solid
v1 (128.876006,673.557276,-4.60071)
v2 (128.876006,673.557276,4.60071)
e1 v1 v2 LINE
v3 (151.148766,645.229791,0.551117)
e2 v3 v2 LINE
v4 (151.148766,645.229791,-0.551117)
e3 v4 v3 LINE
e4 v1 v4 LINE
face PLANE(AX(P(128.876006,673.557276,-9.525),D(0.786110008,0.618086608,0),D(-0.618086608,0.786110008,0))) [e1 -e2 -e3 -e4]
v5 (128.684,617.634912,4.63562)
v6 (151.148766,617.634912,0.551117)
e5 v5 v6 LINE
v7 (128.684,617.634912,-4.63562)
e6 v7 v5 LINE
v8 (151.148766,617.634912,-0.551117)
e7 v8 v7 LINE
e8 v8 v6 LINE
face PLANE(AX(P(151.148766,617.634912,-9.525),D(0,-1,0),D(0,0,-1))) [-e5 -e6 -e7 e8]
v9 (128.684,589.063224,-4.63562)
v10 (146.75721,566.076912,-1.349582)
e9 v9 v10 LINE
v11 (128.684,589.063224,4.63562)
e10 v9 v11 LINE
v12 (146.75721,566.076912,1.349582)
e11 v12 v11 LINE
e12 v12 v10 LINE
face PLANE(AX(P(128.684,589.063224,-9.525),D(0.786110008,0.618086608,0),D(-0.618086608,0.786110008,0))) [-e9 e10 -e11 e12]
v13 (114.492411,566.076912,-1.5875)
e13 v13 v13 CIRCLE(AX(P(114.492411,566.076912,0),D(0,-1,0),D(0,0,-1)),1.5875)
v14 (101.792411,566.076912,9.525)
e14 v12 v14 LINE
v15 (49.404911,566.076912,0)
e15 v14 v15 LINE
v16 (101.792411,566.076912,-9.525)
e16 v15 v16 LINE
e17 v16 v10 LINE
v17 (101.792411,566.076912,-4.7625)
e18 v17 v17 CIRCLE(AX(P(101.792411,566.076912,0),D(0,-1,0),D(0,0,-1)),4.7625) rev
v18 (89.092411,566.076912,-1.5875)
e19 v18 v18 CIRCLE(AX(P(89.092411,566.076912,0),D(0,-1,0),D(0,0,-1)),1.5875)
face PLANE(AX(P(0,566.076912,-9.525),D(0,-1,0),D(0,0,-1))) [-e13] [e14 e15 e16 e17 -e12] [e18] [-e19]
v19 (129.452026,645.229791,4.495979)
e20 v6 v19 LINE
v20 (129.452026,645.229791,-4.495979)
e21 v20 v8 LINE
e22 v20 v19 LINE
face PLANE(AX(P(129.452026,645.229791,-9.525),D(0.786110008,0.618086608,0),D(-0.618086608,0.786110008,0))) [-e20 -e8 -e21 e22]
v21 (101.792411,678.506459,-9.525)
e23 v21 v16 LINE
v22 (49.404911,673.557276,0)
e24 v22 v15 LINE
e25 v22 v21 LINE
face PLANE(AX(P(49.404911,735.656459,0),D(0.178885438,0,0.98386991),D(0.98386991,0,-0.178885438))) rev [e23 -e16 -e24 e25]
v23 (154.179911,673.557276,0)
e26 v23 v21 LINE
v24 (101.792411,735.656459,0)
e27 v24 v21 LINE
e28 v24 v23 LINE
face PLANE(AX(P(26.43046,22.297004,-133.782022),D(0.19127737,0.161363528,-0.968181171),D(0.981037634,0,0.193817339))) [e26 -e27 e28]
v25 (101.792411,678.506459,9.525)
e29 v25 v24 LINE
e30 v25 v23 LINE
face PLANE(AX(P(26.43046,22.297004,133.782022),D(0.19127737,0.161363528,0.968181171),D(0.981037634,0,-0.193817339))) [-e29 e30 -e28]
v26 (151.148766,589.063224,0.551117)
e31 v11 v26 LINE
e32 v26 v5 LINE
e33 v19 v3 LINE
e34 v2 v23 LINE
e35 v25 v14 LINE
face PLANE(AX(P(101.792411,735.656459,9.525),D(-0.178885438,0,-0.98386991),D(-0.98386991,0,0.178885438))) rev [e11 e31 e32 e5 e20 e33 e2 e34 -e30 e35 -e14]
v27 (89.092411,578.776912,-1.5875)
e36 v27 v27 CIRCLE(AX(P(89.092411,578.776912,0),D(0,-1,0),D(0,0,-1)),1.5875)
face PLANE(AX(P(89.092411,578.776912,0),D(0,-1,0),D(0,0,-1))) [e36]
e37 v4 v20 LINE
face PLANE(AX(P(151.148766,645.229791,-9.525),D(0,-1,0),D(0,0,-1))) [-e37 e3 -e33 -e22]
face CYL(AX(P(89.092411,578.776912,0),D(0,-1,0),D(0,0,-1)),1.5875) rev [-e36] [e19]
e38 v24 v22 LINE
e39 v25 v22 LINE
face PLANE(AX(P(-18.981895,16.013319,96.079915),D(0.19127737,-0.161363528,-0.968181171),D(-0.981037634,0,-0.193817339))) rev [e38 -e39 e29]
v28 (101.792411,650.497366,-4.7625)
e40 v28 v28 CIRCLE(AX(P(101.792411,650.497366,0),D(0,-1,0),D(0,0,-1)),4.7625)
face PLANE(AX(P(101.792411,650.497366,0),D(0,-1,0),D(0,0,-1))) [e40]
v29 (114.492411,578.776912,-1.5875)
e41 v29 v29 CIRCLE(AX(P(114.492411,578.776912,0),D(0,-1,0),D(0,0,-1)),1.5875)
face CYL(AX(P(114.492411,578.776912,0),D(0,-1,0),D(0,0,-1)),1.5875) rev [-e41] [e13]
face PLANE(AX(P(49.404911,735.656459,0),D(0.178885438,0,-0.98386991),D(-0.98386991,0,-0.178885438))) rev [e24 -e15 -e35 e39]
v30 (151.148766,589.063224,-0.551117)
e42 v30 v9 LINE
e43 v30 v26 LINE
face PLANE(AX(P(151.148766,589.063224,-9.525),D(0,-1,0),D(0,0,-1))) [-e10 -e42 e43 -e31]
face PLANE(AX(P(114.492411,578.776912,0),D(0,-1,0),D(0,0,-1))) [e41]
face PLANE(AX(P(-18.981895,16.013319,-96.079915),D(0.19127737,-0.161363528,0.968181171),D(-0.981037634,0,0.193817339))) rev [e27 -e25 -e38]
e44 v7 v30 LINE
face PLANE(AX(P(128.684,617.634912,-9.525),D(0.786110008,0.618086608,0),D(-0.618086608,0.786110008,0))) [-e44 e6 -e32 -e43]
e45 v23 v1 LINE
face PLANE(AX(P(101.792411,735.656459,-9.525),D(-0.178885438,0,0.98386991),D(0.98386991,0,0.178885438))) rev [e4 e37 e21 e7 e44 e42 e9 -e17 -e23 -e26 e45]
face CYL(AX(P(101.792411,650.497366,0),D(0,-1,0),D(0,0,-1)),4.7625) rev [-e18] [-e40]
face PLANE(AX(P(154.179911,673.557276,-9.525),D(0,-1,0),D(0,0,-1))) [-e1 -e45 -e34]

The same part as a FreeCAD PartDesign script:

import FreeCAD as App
import Part
import Sketcher
from FreeCAD import Vector
Q = App.Units.Quantity

doc = App.newDocument("Part")
body = doc.addObject("PartDesign::Body", "Body")

sketch1 = body.newObject("Sketcher::SketchObject", "Sketch")
sketch1.AttachmentSupport = (doc.getObject("XY_Plane"), [""])
sketch1.MapMode = "FlatFace"
sketch1.addGeometry(Part.LineSegment(Vector(102, 736, 0), Vector(49, 674, 0)), False)
sketch1.addGeometry(Part.LineSegment(Vector(49, 674, 0), Vector(49, 396, 0)), False)
sketch1.addGeometry(Part.LineSegment(Vector(49, 396, 0), Vector(154, 396, 0)), False)
sketch1.addGeometry(Part.LineSegment(Vector(154, 396, 0), Vector(154, 557, 0)), False)
sketch1.addGeometry(Part.LineSegment(Vector(154, 557, 0), Vector(129, 589, 0)), False)
sketch1.addGeometry(Part.LineSegment(Vector(129, 589, 0), Vector(151, 589, 0)), False)
sketch1.addGeometry(Part.LineSegment(Vector(151, 589, 0), Vector(129, 618, 0)), False)
sketch1.addGeometry(Part.LineSegment(Vector(129, 618, 0), Vector(151, 618, 0)), False)
sketch1.addGeometry(Part.LineSegment(Vector(151, 618, 0), Vector(129, 645, 0)), False)
sketch1.addGeometry(Part.LineSegment(Vector(129, 645, 0), Vector(151, 645, 0)), False)
sketch1.addGeometry(Part.LineSegment(Vector(151, 645, 0), Vector(129, 674, 0)), False)
sketch1.addGeometry(Part.LineSegment(Vector(129, 674, 0), Vector(154, 674, 0)), False)
sketch1.addGeometry(Part.LineSegment(Vector(154, 674, 0), Vector(102, 736, 0)), False)
sketch1.addConstraint(Sketcher.Constraint("Coincident", 0, 2, 1, 1))
sketch1.addConstraint(Sketcher.Constraint("Coincident", 1, 2, 2, 1))
sketch1.addConstraint(Sketcher.Constraint("Coincident", 2, 2, 3, 1))
sketch1.addConstraint(Sketcher.Constraint("Coincident", 3, 2, 4, 1))
sketch1.addConstraint(Sketcher.Constraint("Coincident", 4, 2, 5, 1))
sketch1.addConstraint(Sketcher.Constraint("Coincident", 5, 2, 6, 1))
sketch1.addConstraint(Sketcher.Constraint("Coincident", 6, 2, 7, 1))
sketch1.addConstraint(Sketcher.Constraint("Coincident", 7, 2, 8, 1))
sketch1.addConstraint(Sketcher.Constraint("Coincident", 8, 2, 9, 1))
sketch1.addConstraint(Sketcher.Constraint("Coincident", 9, 2, 10, 1))
sketch1.addConstraint(Sketcher.Constraint("Coincident", 10, 2, 11, 1))
sketch1.addConstraint(Sketcher.Constraint("Coincident", 11, 2, 12, 1))
sketch1.addConstraint(Sketcher.Constraint("Coincident", 12, 2, 0, 1))
sketch1.addConstraint(Sketcher.Constraint("Vertical", 1))
sketch1.addConstraint(Sketcher.Constraint("Horizontal", 2))
sketch1.addConstraint(Sketcher.Constraint("Vertical", 3))
sketch1.addConstraint(Sketcher.Constraint("Horizontal", 5))
sketch1.addConstraint(Sketcher.Constraint("Horizontal", 7))
sketch1.addConstraint(Sketcher.Constraint("Horizontal", 9))
sketch1.addConstraint(Sketcher.Constraint("Horizontal", 11))
sketch1.addConstraint(Sketcher.Constraint("Parallel", 4, 6))
sketch1.addConstraint(Sketcher.Constraint("Parallel", 6, 8))
sketch1.addConstraint(Sketcher.Constraint("Parallel", 8, 10))
sketch1.addConstraint(Sketcher.Constraint("Horizontal", 0, 2, 10, 2))
sketch1.addConstraint(Sketcher.Constraint("Vertical", 4, 2, 6, 2))
sketch1.addConstraint(Sketcher.Constraint("Vertical", 5, 2, 7, 2))
sketch1.addConstraint(Sketcher.Constraint("Vertical", 7, 2, 9, 2))
sketch1.addConstraint(Sketcher.Constraint("Vertical", 3, 2, 11, 2))
sketch1.addConstraint(Sketcher.Constraint("Equal", 0, 12))
sketch1.addConstraint(Sketcher.Constraint("DistanceX", 2, 1, 2, 2, Q("4.125 in")))
sketch1.addConstraint(Sketcher.Constraint("DistanceX", 9, 1, 9, 2, 21.69674))
sketch1.addConstraint(Sketcher.Constraint("DistanceY", 1, 2, 1, 1, 277.05991))
sketch1.addConstraint(Sketcher.Constraint("DistanceX", -1, 1, 4, 2, 128.684))
sketch1.addConstraint(Sketcher.Constraint("Distance", 4, 41.249739))
sketch1.addConstraint(Sketcher.Constraint("Distance", 6, 36.345661))
sketch1.addConstraint(Sketcher.Constraint("DistanceX", 5, 1, 5, 2, 22.464767))
sketch1.addConstraint(Sketcher.Constraint("DistanceX", 11, 1, 11, 2, 25.303905))
sketch1.addConstraint(Sketcher.Constraint("DistanceY", -1, 1, 3, 2, 556.636391))
sketch1.addConstraint(Sketcher.Constraint("DistanceY", -1, 1, 12, 2, 735.656459))
pad1 = body.newObject("PartDesign::Pad", "Pad")
pad1.Profile = sketch1
pad1.Type = "TwoLengths"
pad1.Length = Q("0.375 in")
pad1.Length2 = Q("0.375 in")

sketch2 = body.newObject("Sketcher::SketchObject", "Sketch001")
sketch2.AttachmentSupport = (doc.getObject("XZ_Plane"), [""])
sketch2.MapMode = "FlatFace"
sketch2.AttachmentOffset = App.Placement(Vector(0, 0, -396.497366), App.Rotation())
sketch2.addGeometry(Part.LineSegment(Vector(49, 0, 0), Vector(102, 10, 0)), False)
sketch2.addGeometry(Part.LineSegment(Vector(102, 10, 0), Vector(154, 0, 0)), False)
sketch2.addGeometry(Part.LineSegment(Vector(154, 0, 0), Vector(160, 0, 0)), False)
sketch2.addGeometry(Part.LineSegment(Vector(160, 0, 0), Vector(160, 14, 0)), False)
sketch2.addGeometry(Part.LineSegment(Vector(160, 14, 0), Vector(44, 14, 0)), False)
sketch2.addGeometry(Part.LineSegment(Vector(44, 14, 0), Vector(44, 0, 0)), False)
sketch2.addGeometry(Part.LineSegment(Vector(44, 0, 0), Vector(49, 0, 0)), False)
sketch2.addConstraint(Sketcher.Constraint("Coincident", 0, 2, 1, 1))
sketch2.addConstraint(Sketcher.Constraint("Coincident", 1, 2, 2, 1))
sketch2.addConstraint(Sketcher.Constraint("Coincident", 2, 2, 3, 1))
sketch2.addConstraint(Sketcher.Constraint("Coincident", 3, 2, 4, 1))
sketch2.addConstraint(Sketcher.Constraint("Coincident", 4, 2, 5, 1))
sketch2.addConstraint(Sketcher.Constraint("Coincident", 5, 2, 6, 1))
sketch2.addConstraint(Sketcher.Constraint("Coincident", 6, 2, 0, 1))
sketch2.addConstraint(Sketcher.Constraint("Horizontal", 2))
sketch2.addConstraint(Sketcher.Constraint("Vertical", 3))
sketch2.addConstraint(Sketcher.Constraint("Horizontal", 4))
sketch2.addConstraint(Sketcher.Constraint("Vertical", 5))
sketch2.addConstraint(Sketcher.Constraint("Horizontal", 6))
sketch2.addConstraint(Sketcher.Constraint("PointOnObject", 1, 2, -1))
sketch2.addConstraint(Sketcher.Constraint("PointOnObject", 5, 2, -1))
sketch2.addConstraint(Sketcher.Constraint("Equal", 0, 1))
sketch2.addConstraint(Sketcher.Constraint("DistanceY", -1, 1, 0, 2, Q("0.375 in")))
sketch2.addConstraint(Sketcher.Constraint("DistanceX", 0, 2, 1, 2, Q("2.0625 in")))
sketch2.addConstraint(Sketcher.Constraint("DistanceY", 3, 1, 3, 2, 13.649149))
sketch2.addConstraint(Sketcher.Constraint("DistanceX", 2, 1, 2, 2, 5.477415))
sketch2.addConstraint(Sketcher.Constraint("DistanceX", 4, 2, 4, 1, 115.498833))
sketch2.addConstraint(Sketcher.Constraint("DistanceX", -1, 1, 0, 2, 101.792411))
pocket1 = body.newObject("PartDesign::Pocket", "Pocket")
pocket1.Profile = sketch2
pocket1.Type = "ThroughAll"

sketch3 = body.newObject("Sketcher::SketchObject", "Sketch002")
sketch3.AttachmentSupport = (doc.getObject("XZ_Plane"), [""])
sketch3.MapMode = "FlatFace"
sketch3.AttachmentOffset = App.Placement(Vector(0, 0, -396.497366), App.Rotation())
sketch3.addGeometry(Part.LineSegment(Vector(102, -10, 0), Vector(49, 0, 0)), False)
sketch3.addGeometry(Part.LineSegment(Vector(49, 0, 0), Vector(44, 0, 0)), False)
sketch3.addGeometry(Part.LineSegment(Vector(44, 0, 0), Vector(44, -15, 0)), False)
sketch3.addGeometry(Part.LineSegment(Vector(44, -15, 0), Vector(160, -15, 0)), False)
sketch3.addGeometry(Part.LineSegment(Vector(160, -15, 0), Vector(160, 0, 0)), False)
sketch3.addGeometry(Part.LineSegment(Vector(160, 0, 0), Vector(154, 0, 0)), False)
sketch3.addGeometry(Part.LineSegment(Vector(154, 0, 0), Vector(102, -10, 0)), False)
sketch3.addConstraint(Sketcher.Constraint("Coincident", 0, 2, 1, 1))
sketch3.addConstraint(Sketcher.Constraint("Coincident", 1, 2, 2, 1))
sketch3.addConstraint(Sketcher.Constraint("Coincident", 2, 2, 3, 1))
sketch3.addConstraint(Sketcher.Constraint("Coincident", 3, 2, 4, 1))
sketch3.addConstraint(Sketcher.Constraint("Coincident", 4, 2, 5, 1))
sketch3.addConstraint(Sketcher.Constraint("Coincident", 5, 2, 6, 1))
sketch3.addConstraint(Sketcher.Constraint("Coincident", 6, 2, 0, 1))
sketch3.addConstraint(Sketcher.Constraint("Horizontal", 1))
sketch3.addConstraint(Sketcher.Constraint("Vertical", 2))
sketch3.addConstraint(Sketcher.Constraint("Horizontal", 3))
sketch3.addConstraint(Sketcher.Constraint("Vertical", 4))
sketch3.addConstraint(Sketcher.Constraint("Horizontal", 5))
sketch3.addConstraint(Sketcher.Constraint("PointOnObject", 0, 2, -1))
sketch3.addConstraint(Sketcher.Constraint("PointOnObject", 4, 2, -1))
sketch3.addConstraint(Sketcher.Constraint("Equal", 0, 6))
sketch3.addConstraint(Sketcher.Constraint("DistanceY", 6, 2, -1, 1, Q("0.375 in")))
sketch3.addConstraint(Sketcher.Constraint("DistanceX", 0, 2, 5, 2, Q("4.125 in")))
sketch3.addConstraint(Sketcher.Constraint("DistanceX", 1, 2, 1, 1, 5.722898))
sketch3.addConstraint(Sketcher.Constraint("DistanceX", 5, 2, 5, 1, 5.400659))
sketch3.addConstraint(Sketcher.Constraint("DistanceY", 2, 2, 2, 1, 14.500746))
sketch3.addConstraint(Sketcher.Constraint("DistanceX", -1, 1, 0, 2, 49.404911))
pocket2 = body.newObject("PartDesign::Pocket", "Pocket001")
pocket2.Profile = sketch3
pocket2.Type = "ThroughAll"

sketch4 = body.newObject("Sketcher::SketchObject", "Sketch003")
sketch4.Placement = App.Placement(Vector(26.43046, 22.297004, 133.782022), App.Rotation(Vector(0.981536025, -0.031445806, -0.188674835), Vector(0, 0.986393924, -0.164398987), Vector(0.19127737, 0.161363528, 0.968181171), "ZXY"))
sketch4.addGeometry(Part.LineSegment(Vector(40, 769, 0), Vector(40, 633, 0)), False)
sketch4.addGeometry(Part.LineSegment(Vector(40, 633, 0), Vector(138, 633, 0)), False)
sketch4.addGeometry(Part.LineSegment(Vector(138, 633, 0), Vector(138, 769, 0)), False)
sketch4.addGeometry(Part.LineSegment(Vector(138, 769, 0), Vector(40, 769, 0)), False)
sketch4.addConstraint(Sketcher.Constraint("Coincident", 0, 2, 1, 1))
sketch4.addConstraint(Sketcher.Constraint("Coincident", 1, 2, 2, 1))
sketch4.addConstraint(Sketcher.Constraint("Coincident", 2, 2, 3, 1))
sketch4.addConstraint(Sketcher.Constraint("Coincident", 3, 2, 0, 1))
sketch4.addConstraint(Sketcher.Constraint("Vertical", 0))
sketch4.addConstraint(Sketcher.Constraint("Horizontal", 1))
sketch4.addConstraint(Sketcher.Constraint("Vertical", 2))
sketch4.addConstraint(Sketcher.Constraint("Horizontal", 3))
sketch4.addConstraint(Sketcher.Constraint("DistanceX", 1, 1, 1, 2, 97.518379))
sketch4.addConstraint(Sketcher.Constraint("DistanceY", 0, 2, 0, 1, 136.419581))
sketch4.addConstraint(Sketcher.Constraint("DistanceX", -1, 1, 0, 2, 40.48918))
sketch4.addConstraint(Sketcher.Constraint("DistanceY", -1, 1, 0, 2, 632.533041))
pocket3 = body.newObject("PartDesign::Pocket", "Pocket002")
pocket3.Profile = sketch4
pocket3.Type = "ThroughAll"
pocket3.Reversed = True

sketch5 = body.newObject("Sketcher::SketchObject", "Sketch004")
sketch5.Placement = App.Placement(Vector(-18.981895, 16.013319, 96.079915), App.Rotation(Vector(0.981536025, 0.031445806, 0.188674835), Vector(0, 0.986393924, -0.164398987), Vector(-0.19127737, 0.161363528, 0.968181171), "ZXY"))
sketch5.addGeometry(Part.LineSegment(Vector(61, 775, 0), Vector(61, 621, 0)), False)
sketch5.addGeometry(Part.LineSegment(Vector(61, 621, 0), Vector(136, 621, 0)), False)
sketch5.addGeometry(Part.LineSegment(Vector(136, 621, 0), Vector(136, 775, 0)), False)
sketch5.addGeometry(Part.LineSegment(Vector(136, 775, 0), Vector(61, 775, 0)), False)
sketch5.addConstraint(Sketcher.Constraint("Coincident", 0, 2, 1, 1))
sketch5.addConstraint(Sketcher.Constraint("Coincident", 1, 2, 2, 1))
sketch5.addConstraint(Sketcher.Constraint("Coincident", 2, 2, 3, 1))
sketch5.addConstraint(Sketcher.Constraint("Coincident", 3, 2, 0, 1))
sketch5.addConstraint(Sketcher.Constraint("Vertical", 0))
sketch5.addConstraint(Sketcher.Constraint("Horizontal", 1))
sketch5.addConstraint(Sketcher.Constraint("Vertical", 2))
sketch5.addConstraint(Sketcher.Constraint("Horizontal", 3))
sketch5.addConstraint(Sketcher.Constraint("DistanceX", 1, 1, 1, 2, 75.100701))
sketch5.addConstraint(Sketcher.Constraint("DistanceX", -1, 1, 0, 2, Q("2.4143001 in")))
sketch5.addConstraint(Sketcher.Constraint("DistanceY", 0, 2, 0, 1, 154.277978))
sketch5.addConstraint(Sketcher.Constraint("DistanceY", -1, 1, 0, 2, 620.653796))
pocket4 = body.newObject("PartDesign::Pocket", "Pocket003")
pocket4.Profile = sketch5
pocket4.Type = "ThroughAll"
pocket4.Reversed = True
doc.recompute()

mirrored = body.newObject("PartDesign::Mirrored", "Mirrored")
mirrored.Originals = [pocket3, pocket4]
mirrored.MirrorPlane = (doc.getObject("XY_Plane"), [""])
body.Tip = mirrored

sketch6 = body.newObject("Sketcher::SketchObject", "Sketch005")
sketch6.AttachmentSupport = (doc.getObject("XZ_Plane"), [""])
sketch6.MapMode = "FlatFace"
sketch6.AttachmentOffset = App.Placement(Vector(0, 0, -396.497366), App.Rotation())
sketch6.addGeometry(Part.Circle(Vector(101.8, 0, 0), Vector(0, 0, 1), 4.8), False)
sketch6.addConstraint(Sketcher.Constraint("PointOnObject", 0, 3, -1))
sketch6.addConstraint(Sketcher.Constraint("Diameter", 0, Q("0.375 in")))
sketch6.addConstraint(Sketcher.Constraint("DistanceX", -1, 1, 0, 3, 101.792411))
pocket5 = body.newObject("PartDesign::Pocket", "Pocket004")
pocket5.Profile = sketch6
pocket5.Length = Q("10 in")

sketch7 = body.newObject("Sketcher::SketchObject", "Sketch006")
sketch7.AttachmentSupport = (doc.getObject("XY_Plane"), [""])
sketch7.MapMode = "FlatFace"
sketch7.addGeometry(Part.LineSegment(Vector(-22, 566, 0), Vector(-22, 348, 0)), False)
sketch7.addGeometry(Part.LineSegment(Vector(-22, 348, 0), Vector(201, 348, 0)), False)
sketch7.addGeometry(Part.LineSegment(Vector(201, 348, 0), Vector(201, 566, 0)), False)
sketch7.addGeometry(Part.LineSegment(Vector(201, 566, 0), Vector(-22, 566, 0)), False)
sketch7.addConstraint(Sketcher.Constraint("Coincident", 0, 2, 1, 1))
sketch7.addConstraint(Sketcher.Constraint("Coincident", 1, 2, 2, 1))
sketch7.addConstraint(Sketcher.Constraint("Coincident", 2, 2, 3, 1))
sketch7.addConstraint(Sketcher.Constraint("Coincident", 3, 2, 0, 1))
sketch7.addConstraint(Sketcher.Constraint("Vertical", 0))
sketch7.addConstraint(Sketcher.Constraint("Horizontal", 1))
sketch7.addConstraint(Sketcher.Constraint("Vertical", 2))
sketch7.addConstraint(Sketcher.Constraint("Horizontal", 3))
sketch7.addConstraint(Sketcher.Constraint("DistanceX", 1, 1, 1, 2, 222.99761))
sketch7.addConstraint(Sketcher.Constraint("DistanceY", 0, 2, 0, 1, 218.448411))
sketch7.addConstraint(Sketcher.Constraint("DistanceY", -1, 1, 0, 2, 347.628501))
sketch7.addConstraint(Sketcher.Constraint("DistanceX", 0, 2, -1, 1, 21.64465))
pocket6 = body.newObject("PartDesign::Pocket", "Pocket005")
pocket6.Profile = sketch7
pocket6.Type = "ThroughAll"
pocket6.Midplane = True

sketch8 = body.newObject("Sketcher::SketchObject", "Sketch007")
sketch8.AttachmentSupport = (doc.getObject("XZ_Plane"), [""])
sketch8.MapMode = "FlatFace"
sketch8.AttachmentOffset = App.Placement(Vector(0, 0, -566.076912), App.Rotation())
sketch8.addGeometry(Part.Circle(Vector(89.1, 0, 0), Vector(0, 0, 1), 1.6), False)
sketch8.addGeometry(Part.Circle(Vector(114.5, 0, 0), Vector(0, 0, 1), 1.6), False)
sketch8.addConstraint(Sketcher.Constraint("Equal", 0, 1))
sketch8.addConstraint(Sketcher.Constraint("PointOnObject", 0, 3, -1))
sketch8.addConstraint(Sketcher.Constraint("PointOnObject", 1, 3, -1))
sketch8.addConstraint(Sketcher.Constraint("Diameter", 0, Q("0.125 in")))
sketch8.addConstraint(Sketcher.Constraint("DistanceX", 0, 3, 1, 3, Q("1 in")))
sketch8.addConstraint(Sketcher.Constraint("DistanceX", -1, 1, 0, 3, 89.092411))
pocket7 = body.newObject("PartDesign::Pocket", "Pocket006")
pocket7.Profile = sketch8
pocket7.Length = Q("0.5 in")

doc.recompute()
